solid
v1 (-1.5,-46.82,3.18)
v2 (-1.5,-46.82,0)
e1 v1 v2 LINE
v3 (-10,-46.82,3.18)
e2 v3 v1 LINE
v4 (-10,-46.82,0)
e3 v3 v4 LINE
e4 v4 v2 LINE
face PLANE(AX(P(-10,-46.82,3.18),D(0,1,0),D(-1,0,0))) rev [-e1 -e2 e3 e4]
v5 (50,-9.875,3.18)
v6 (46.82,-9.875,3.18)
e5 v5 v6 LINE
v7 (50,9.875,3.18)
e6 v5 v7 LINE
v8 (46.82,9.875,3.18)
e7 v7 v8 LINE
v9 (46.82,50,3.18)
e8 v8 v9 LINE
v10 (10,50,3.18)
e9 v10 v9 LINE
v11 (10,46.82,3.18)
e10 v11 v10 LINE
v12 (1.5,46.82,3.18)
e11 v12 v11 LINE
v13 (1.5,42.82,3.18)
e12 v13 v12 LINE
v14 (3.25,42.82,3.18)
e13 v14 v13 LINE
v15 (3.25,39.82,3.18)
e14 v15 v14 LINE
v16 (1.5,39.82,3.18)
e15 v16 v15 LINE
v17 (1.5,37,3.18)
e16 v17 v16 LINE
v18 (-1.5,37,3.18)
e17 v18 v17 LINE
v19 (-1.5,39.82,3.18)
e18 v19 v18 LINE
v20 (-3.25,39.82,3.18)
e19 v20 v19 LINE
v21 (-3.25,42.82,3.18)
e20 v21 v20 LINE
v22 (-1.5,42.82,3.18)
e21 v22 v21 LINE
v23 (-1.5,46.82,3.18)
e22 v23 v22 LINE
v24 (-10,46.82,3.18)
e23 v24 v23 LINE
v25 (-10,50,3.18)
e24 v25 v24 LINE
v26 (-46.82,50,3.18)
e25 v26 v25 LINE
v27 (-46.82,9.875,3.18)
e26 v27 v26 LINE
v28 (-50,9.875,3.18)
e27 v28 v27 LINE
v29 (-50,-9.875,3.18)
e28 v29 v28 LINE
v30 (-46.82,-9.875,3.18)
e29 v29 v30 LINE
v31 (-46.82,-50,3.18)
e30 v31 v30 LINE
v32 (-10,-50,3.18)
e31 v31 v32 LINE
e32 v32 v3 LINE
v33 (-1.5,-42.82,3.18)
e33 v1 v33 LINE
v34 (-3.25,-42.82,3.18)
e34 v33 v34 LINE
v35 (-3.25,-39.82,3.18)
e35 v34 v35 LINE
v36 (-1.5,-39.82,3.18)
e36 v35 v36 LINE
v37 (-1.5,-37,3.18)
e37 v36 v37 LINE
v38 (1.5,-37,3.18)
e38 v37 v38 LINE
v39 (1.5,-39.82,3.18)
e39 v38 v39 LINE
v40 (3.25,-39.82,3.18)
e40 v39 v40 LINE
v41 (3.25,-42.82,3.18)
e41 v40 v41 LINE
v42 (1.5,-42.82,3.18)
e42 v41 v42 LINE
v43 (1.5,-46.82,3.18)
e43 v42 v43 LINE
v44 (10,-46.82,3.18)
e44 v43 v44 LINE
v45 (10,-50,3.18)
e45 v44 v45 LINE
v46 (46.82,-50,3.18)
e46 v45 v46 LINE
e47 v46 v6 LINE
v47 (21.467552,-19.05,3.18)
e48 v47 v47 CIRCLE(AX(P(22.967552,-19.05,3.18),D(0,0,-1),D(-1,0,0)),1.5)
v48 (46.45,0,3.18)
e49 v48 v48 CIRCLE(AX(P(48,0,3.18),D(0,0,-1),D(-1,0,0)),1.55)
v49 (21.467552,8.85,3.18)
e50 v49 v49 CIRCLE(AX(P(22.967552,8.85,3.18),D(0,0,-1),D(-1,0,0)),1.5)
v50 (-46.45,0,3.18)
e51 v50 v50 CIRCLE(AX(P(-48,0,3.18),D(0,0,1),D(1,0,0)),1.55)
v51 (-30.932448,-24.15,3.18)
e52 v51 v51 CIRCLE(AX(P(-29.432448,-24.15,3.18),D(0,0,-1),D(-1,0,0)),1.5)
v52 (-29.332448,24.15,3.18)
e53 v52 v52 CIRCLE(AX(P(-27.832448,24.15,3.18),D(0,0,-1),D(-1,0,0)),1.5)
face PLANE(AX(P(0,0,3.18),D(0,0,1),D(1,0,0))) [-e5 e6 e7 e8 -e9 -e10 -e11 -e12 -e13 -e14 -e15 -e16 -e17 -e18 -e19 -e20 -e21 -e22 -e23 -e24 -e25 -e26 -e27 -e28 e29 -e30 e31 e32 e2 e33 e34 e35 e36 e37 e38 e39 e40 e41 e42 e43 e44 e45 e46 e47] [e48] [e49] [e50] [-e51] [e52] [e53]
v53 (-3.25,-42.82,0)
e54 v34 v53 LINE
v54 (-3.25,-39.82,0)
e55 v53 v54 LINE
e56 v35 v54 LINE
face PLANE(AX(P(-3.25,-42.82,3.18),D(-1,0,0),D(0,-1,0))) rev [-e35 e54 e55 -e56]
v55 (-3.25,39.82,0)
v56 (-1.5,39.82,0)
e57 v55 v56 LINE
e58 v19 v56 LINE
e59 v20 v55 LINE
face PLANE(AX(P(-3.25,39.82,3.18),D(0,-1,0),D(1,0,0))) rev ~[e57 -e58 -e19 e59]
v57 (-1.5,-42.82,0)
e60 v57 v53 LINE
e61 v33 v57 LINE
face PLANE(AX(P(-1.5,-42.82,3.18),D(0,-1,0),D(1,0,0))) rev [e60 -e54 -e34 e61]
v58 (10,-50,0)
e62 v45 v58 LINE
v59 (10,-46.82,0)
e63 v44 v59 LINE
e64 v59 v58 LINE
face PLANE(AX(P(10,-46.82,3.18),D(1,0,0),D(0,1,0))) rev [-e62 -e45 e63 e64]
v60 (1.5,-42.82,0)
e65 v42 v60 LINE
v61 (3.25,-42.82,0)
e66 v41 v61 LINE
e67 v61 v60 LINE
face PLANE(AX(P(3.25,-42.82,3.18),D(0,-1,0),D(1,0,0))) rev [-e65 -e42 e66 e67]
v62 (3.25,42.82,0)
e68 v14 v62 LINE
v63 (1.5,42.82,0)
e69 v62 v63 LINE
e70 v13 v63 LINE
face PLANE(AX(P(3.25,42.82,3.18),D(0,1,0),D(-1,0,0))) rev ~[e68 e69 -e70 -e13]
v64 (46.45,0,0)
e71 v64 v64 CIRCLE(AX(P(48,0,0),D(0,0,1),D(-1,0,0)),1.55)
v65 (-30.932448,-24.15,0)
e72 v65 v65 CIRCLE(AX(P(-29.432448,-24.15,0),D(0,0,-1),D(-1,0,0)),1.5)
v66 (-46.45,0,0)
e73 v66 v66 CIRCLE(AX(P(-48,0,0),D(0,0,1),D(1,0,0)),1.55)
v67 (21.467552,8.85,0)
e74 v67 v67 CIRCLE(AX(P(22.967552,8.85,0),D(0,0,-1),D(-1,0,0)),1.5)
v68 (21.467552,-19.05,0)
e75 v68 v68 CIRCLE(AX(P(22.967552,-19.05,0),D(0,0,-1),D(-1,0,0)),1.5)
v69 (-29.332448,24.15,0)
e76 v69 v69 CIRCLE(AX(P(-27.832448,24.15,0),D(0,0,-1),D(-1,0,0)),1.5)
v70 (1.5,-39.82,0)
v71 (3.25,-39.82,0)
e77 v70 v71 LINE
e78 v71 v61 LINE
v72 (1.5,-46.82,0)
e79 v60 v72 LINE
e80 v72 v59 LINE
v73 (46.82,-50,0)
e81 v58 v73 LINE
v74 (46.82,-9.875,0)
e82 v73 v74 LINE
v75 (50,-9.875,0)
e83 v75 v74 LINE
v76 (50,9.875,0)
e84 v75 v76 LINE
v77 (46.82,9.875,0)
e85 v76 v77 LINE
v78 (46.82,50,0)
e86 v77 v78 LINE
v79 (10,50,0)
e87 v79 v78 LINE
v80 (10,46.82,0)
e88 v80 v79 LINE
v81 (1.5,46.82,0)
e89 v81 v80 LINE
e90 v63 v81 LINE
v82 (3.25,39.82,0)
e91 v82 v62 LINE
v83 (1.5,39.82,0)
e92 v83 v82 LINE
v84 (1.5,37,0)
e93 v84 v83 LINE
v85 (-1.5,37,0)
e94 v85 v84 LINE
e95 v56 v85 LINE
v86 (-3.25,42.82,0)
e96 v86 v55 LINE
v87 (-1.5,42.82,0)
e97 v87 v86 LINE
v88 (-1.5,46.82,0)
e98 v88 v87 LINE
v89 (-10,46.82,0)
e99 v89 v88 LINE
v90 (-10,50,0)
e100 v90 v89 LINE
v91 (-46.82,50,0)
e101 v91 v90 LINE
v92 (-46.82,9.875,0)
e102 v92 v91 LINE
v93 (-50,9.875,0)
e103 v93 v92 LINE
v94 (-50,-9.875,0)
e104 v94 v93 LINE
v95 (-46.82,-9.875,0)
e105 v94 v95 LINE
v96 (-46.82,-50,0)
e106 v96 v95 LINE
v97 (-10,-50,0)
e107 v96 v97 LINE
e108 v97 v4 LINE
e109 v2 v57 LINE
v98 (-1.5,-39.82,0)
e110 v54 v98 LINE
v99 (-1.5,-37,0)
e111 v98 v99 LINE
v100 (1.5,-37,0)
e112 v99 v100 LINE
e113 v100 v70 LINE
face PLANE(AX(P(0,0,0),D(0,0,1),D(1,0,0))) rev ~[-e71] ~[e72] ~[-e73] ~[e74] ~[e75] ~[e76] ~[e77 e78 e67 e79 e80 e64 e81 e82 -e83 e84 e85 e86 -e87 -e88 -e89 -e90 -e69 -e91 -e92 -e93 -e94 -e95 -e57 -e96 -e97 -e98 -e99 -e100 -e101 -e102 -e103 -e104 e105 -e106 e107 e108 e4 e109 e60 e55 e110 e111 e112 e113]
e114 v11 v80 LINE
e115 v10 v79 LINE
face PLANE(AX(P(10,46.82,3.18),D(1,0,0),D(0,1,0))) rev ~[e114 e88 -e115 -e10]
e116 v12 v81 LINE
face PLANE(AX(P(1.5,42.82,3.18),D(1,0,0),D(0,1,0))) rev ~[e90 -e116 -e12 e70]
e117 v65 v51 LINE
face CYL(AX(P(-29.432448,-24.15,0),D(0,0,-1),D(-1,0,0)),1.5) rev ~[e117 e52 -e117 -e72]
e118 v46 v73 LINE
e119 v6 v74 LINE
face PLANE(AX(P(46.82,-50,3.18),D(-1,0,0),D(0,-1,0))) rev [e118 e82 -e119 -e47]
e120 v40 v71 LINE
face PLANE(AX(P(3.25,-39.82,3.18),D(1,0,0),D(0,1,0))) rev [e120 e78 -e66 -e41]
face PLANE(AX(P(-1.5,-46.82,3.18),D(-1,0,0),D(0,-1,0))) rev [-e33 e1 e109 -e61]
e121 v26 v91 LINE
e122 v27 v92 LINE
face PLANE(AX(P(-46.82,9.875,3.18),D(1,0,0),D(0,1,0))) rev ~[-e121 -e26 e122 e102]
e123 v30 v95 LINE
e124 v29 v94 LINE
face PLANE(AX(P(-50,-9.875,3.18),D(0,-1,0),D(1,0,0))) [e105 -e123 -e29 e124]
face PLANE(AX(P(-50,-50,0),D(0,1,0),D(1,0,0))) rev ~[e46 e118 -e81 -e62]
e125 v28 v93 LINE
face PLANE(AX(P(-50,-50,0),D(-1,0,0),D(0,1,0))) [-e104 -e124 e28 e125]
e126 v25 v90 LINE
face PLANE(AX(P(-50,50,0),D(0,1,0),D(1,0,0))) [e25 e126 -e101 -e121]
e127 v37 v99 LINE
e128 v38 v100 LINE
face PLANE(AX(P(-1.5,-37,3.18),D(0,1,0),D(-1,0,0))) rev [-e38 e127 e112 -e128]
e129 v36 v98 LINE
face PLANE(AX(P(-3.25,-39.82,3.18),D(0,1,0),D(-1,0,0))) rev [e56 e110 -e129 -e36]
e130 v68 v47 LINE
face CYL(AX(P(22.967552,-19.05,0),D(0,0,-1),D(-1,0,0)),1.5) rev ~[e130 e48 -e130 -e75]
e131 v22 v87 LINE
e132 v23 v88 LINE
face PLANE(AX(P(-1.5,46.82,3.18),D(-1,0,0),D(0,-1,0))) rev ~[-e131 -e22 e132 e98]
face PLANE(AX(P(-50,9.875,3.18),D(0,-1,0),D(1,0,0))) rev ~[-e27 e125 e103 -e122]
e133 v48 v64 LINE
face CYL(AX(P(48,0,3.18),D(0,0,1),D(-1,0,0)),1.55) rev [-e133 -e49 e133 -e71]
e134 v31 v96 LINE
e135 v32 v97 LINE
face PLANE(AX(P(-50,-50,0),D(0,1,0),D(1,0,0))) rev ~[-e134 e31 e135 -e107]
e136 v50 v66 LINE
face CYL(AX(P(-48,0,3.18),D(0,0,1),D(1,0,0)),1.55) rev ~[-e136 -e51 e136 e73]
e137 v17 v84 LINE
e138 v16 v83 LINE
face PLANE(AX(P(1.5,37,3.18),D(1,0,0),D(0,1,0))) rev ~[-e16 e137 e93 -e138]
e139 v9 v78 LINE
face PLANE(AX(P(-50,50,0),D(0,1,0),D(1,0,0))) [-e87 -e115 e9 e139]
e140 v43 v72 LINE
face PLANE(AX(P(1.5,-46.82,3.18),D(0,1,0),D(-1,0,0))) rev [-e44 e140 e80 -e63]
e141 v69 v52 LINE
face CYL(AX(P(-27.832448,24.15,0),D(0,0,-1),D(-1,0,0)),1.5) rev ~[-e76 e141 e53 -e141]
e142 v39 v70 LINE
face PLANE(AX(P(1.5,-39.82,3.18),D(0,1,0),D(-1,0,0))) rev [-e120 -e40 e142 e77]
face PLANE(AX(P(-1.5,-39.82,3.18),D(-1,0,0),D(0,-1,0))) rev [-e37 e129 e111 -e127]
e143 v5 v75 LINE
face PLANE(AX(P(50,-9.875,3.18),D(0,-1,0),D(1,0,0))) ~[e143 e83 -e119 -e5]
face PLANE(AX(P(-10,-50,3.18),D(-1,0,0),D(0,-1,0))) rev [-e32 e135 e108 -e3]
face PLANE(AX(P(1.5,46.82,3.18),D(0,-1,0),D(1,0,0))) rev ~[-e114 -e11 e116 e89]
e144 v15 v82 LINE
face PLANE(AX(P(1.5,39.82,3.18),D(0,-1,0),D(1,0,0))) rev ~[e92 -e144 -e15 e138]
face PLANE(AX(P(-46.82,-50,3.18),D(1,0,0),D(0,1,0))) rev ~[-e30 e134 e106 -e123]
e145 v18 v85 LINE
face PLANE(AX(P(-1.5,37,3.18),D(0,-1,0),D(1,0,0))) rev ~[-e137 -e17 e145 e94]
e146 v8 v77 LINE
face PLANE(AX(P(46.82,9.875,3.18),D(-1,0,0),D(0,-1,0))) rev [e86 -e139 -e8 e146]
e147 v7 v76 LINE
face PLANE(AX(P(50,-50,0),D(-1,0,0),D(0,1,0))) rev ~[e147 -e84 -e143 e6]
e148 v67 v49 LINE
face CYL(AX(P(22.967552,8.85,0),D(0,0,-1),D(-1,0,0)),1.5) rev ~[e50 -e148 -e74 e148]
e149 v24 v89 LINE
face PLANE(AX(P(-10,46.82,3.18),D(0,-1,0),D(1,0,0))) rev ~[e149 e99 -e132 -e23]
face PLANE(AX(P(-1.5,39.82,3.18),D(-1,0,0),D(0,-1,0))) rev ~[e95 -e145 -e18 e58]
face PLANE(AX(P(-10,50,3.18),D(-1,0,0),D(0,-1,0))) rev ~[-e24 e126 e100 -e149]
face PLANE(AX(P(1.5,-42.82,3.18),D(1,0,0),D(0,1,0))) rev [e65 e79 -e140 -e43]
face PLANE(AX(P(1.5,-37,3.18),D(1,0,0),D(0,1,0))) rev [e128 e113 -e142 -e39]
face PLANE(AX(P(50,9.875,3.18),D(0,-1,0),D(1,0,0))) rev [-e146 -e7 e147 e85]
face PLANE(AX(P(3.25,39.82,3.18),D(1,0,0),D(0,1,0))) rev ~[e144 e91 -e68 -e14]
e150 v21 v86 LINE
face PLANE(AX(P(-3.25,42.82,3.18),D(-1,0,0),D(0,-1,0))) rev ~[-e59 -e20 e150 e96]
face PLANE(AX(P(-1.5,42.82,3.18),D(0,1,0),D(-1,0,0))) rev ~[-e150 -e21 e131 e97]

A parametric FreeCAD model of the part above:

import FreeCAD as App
import Part
import Sketcher


def add_polygon(sketch, points):
    """Adds a closed chain of lines whose ends are joined by coincident constraints."""
    first, n = sketch.GeometryCount, len(points)
    for a, b in zip(points, points[1:] + points[:1]):
        sketch.addGeometry(Part.LineSegment(App.Vector(*a, 0), App.Vector(*b, 0)), False)
    for i in range(n):
        sketch.addConstraint(Sketcher.Constraint("Coincident", first + i, 2, first + (i + 1) % n, 1))

doc = App.newDocument("Part")
body = doc.addObject("PartDesign::Body", "Body")

# Sketch on XY plane
sketch1 = body.newObject("Sketcher::SketchObject", "Sketch")
sketch1.AttachmentSupport = (doc.getObject("XY_Plane"), [""])
sketch1.MapMode = "FlatFace"
add_polygon(sketch1, [(-50, 50), (-50, -50), (50, -50), (50, 50)])  # lines 0-3
sketch1.addConstraint([
    Sketcher.Constraint("Vertical", 0),
    Sketcher.Constraint("Horizontal", 1),
    Sketcher.Constraint("Vertical", 2),
    Sketcher.Constraint("Horizontal", 3),
    Sketcher.Constraint("Symmetric", 0, 2, 2, 2, -1, 1),
    Sketcher.Constraint("Equal", 3, 0),
    Sketcher.Constraint("DistanceX", 1, 1, 1, 2, 100.0),
])
pad1 = body.newObject("PartDesign::Pad", "Pad")
pad1.Profile = sketch1
pad1.Length = 3.18

# Sketch on XY plane
sketch2 = body.newObject("Sketcher::SketchObject", "Sketch001")
sketch2.AttachmentSupport = (doc.getObject("XY_Plane"), [""])
sketch2.MapMode = "FlatFace"
sketch2.AttachmentOffset = App.Placement(App.Vector(0, 0, 3.18), App.Rotation())
sketch2.addGeometry(Part.Circle(App.Vector(-48, 0, 0), App.Vector(0, 0, 1), 1.6), False)  # 0
add_polygon(sketch2, [(-10, 50), (-10, 46.8), (-1.5, 46.8), (-1.5, 42.8), (-3.2, 42.8), (-3.2, 39.8), (-1.5, 39.8), (-1.5, 37), (1.5, 37), (1.5, 39.8), (3.2, 39.8), (3.2, 42.8), (1.5, 42.8), (1.5, 46.8), (10, 46.8), (10, 50)])  # lines 1-16
add_polygon(sketch2, [(-50, 50), (-50, 9.9), (-46.8, 9.9), (-46.8, 50)])  # lines 17-20
add_polygon(sketch2, [(-50, -9.9), (-50, -50), (-46.8, -50), (-46.8, -9.9)])  # lines 21-24
sketch2.addConstraint([
    Sketcher.Constraint("Vertical", 1),
    Sketcher.Constraint("Horizontal", 2),
    Sketcher.Constraint("Vertical", 3),
    Sketcher.Constraint("Horizontal", 4),
    Sketcher.Constraint("Vertical", 5),
    Sketcher.Constraint("Horizontal", 6),
    Sketcher.Constraint("Vertical", 7),
    Sketcher.Constraint("Horizontal", 8),
    Sketcher.Constraint("Vertical", 9),
    Sketcher.Constraint("Horizontal", 10),
    Sketcher.Constraint("Vertical", 11),
    Sketcher.Constraint("Horizontal", 12),
    Sketcher.Constraint("Vertical", 13),
    Sketcher.Constraint("Horizontal", 14),
    Sketcher.Constraint("Vertical", 15),
    Sketcher.Constraint("Horizontal", 16),
    Sketcher.Constraint("Vertical", 17),
    Sketcher.Constraint("Horizontal", 18),
    Sketcher.Constraint("Vertical", 19),
    Sketcher.Constraint("Horizontal", 20),
    Sketcher.Constraint("Vertical", 21),
    Sketcher.Constraint("Horizontal", 22),
    Sketcher.Constraint("Vertical", 23),
    Sketcher.Constraint("Horizontal", 24),
    Sketcher.Constraint("Symmetric", 6, 2, 9, 2, -2),
    Sketcher.Constraint("Symmetric", 4, 2, 11, 2, -2),
    Sketcher.Constraint("Symmetric", 2, 2, 13, 2, -2),
    Sketcher.Constraint("Symmetric", 20, 2, 21, 2, -1),
    Sketcher.Constraint("Symmetric", 18, 2, 23, 2, -1),
    Sketcher.Constraint("PointOnObject", 0, 3, -1),
    Sketcher.Constraint("Horizontal", 16, 2, 19, 2),
    Sketcher.Constraint("Vertical", 3, 2, 6, 2),
    Sketcher.Constraint("Equal", 2, 14),
    Sketcher.Constraint("Equal", 24, 1),
    Sketcher.Constraint("Equal", 8, 5),
    Sketcher.Constraint("Diameter", 0, 3.1),
    Sketcher.Constraint("DistanceX", 8, 1, 8, 2, 3.0),
    Sketcher.Constraint("DistanceX", 16, 2, 16, 1, 20.0),
    Sketcher.Constraint("DistanceY", 3, 2, 3, 1, 4.0),
    Sketcher.Constraint("DistanceX", 0, 3, -1, 1, 48.0),
    Sketcher.Constraint("DistanceY", -1, 1, 7, 2, 37.0),
    Sketcher.Constraint("DistanceY", -1, 1, 15, 2, 50.0),
    Sketcher.Constraint("DistanceX", 17, 2, -1, 1, 50.0),
    Sketcher.Constraint("DistanceX", 4, 2, 4, 1, 1.75),
    Sketcher.Constraint("DistanceX", 18, 1, 18, 2, 3.18),
    Sketcher.Constraint("DistanceY", 17, 2, 17, 1, 40.125),
])
pocket1 = body.newObject("PartDesign::Pocket", "Pocket")
pocket1.Profile = sketch2
pocket1.Type = "ThroughAll"
doc.recompute()

mirrored = body.newObject("PartDesign::Mirrored", "Mirrored")
mirrored.Originals = [pocket1]
mirrored.MirrorPlane = (doc.getObject("XZ_Plane"), [""])
body.Tip = mirrored
doc.recompute()

mirrored2 = body.newObject("PartDesign::Mirrored", "Mirrored001")
mirrored2.Originals = [pocket1]
mirrored2.MirrorPlane = (doc.getObject("YZ_Plane"), [""])
body.Tip = mirrored2

# Sketch on XY plane
sketch3 = body.newObject("Sketcher::SketchObject", "Sketch002")
sketch3.AttachmentSupport = (doc.getObject("XY_Plane"), [""])
sketch3.MapMode = "FlatFace"
sketch3.addGeometry([
    Part.Circle(App.Vector(-27.8, 24.1, 0), App.Vector(0, 0, 1), 1.5),
    Part.Circle(App.Vector(-29.4, -24.1, 0), App.Vector(0, 0, 1), 1.5),
    Part.Circle(App.Vector(23, -19.1, 0), App.Vector(0, 0, 1), 1.5),
    Part.Circle(App.Vector(23, 8.8, 0), App.Vector(0, 0, 1), 1.5),
], False)
sketch3.addConstraint([
    Sketcher.Constraint("Equal", 0, 1),
    Sketcher.Constraint("Equal", 1, 2),
    Sketcher.Constraint("Equal", 2, 3),
    Sketcher.Constraint("Vertical", 2, 3, 3, 3),
    Sketcher.Constraint("Diameter", 0, 3.0),
    Sketcher.Constraint("DistanceY", 1, 3, 3, 3, 33.0),
    Sketcher.Constraint("DistanceX", 1, 3, 0, 3, 1.6),
    Sketcher.Constraint("DistanceY", 1, 3, 0, 3, 48.3),
    Sketcher.Constraint("DistanceX", 1, 3, 2, 3, 52.4),
    Sketcher.Constraint("DistanceY", 1, 3, 2, 3, 5.1),
    Sketcher.Constraint("DistanceY", -1, 1, 0, 3, 24.15),
    Sketcher.Constraint("DistanceX", 0, 3, -1, 1, 27.832448),
])
pocket2 = body.newObject("PartDesign::Pocket", "Pocket001")
pocket2.Profile = sketch3
pocket2.Type = "ThroughAll"
pocket2.Reversed = True

doc.recompute()
